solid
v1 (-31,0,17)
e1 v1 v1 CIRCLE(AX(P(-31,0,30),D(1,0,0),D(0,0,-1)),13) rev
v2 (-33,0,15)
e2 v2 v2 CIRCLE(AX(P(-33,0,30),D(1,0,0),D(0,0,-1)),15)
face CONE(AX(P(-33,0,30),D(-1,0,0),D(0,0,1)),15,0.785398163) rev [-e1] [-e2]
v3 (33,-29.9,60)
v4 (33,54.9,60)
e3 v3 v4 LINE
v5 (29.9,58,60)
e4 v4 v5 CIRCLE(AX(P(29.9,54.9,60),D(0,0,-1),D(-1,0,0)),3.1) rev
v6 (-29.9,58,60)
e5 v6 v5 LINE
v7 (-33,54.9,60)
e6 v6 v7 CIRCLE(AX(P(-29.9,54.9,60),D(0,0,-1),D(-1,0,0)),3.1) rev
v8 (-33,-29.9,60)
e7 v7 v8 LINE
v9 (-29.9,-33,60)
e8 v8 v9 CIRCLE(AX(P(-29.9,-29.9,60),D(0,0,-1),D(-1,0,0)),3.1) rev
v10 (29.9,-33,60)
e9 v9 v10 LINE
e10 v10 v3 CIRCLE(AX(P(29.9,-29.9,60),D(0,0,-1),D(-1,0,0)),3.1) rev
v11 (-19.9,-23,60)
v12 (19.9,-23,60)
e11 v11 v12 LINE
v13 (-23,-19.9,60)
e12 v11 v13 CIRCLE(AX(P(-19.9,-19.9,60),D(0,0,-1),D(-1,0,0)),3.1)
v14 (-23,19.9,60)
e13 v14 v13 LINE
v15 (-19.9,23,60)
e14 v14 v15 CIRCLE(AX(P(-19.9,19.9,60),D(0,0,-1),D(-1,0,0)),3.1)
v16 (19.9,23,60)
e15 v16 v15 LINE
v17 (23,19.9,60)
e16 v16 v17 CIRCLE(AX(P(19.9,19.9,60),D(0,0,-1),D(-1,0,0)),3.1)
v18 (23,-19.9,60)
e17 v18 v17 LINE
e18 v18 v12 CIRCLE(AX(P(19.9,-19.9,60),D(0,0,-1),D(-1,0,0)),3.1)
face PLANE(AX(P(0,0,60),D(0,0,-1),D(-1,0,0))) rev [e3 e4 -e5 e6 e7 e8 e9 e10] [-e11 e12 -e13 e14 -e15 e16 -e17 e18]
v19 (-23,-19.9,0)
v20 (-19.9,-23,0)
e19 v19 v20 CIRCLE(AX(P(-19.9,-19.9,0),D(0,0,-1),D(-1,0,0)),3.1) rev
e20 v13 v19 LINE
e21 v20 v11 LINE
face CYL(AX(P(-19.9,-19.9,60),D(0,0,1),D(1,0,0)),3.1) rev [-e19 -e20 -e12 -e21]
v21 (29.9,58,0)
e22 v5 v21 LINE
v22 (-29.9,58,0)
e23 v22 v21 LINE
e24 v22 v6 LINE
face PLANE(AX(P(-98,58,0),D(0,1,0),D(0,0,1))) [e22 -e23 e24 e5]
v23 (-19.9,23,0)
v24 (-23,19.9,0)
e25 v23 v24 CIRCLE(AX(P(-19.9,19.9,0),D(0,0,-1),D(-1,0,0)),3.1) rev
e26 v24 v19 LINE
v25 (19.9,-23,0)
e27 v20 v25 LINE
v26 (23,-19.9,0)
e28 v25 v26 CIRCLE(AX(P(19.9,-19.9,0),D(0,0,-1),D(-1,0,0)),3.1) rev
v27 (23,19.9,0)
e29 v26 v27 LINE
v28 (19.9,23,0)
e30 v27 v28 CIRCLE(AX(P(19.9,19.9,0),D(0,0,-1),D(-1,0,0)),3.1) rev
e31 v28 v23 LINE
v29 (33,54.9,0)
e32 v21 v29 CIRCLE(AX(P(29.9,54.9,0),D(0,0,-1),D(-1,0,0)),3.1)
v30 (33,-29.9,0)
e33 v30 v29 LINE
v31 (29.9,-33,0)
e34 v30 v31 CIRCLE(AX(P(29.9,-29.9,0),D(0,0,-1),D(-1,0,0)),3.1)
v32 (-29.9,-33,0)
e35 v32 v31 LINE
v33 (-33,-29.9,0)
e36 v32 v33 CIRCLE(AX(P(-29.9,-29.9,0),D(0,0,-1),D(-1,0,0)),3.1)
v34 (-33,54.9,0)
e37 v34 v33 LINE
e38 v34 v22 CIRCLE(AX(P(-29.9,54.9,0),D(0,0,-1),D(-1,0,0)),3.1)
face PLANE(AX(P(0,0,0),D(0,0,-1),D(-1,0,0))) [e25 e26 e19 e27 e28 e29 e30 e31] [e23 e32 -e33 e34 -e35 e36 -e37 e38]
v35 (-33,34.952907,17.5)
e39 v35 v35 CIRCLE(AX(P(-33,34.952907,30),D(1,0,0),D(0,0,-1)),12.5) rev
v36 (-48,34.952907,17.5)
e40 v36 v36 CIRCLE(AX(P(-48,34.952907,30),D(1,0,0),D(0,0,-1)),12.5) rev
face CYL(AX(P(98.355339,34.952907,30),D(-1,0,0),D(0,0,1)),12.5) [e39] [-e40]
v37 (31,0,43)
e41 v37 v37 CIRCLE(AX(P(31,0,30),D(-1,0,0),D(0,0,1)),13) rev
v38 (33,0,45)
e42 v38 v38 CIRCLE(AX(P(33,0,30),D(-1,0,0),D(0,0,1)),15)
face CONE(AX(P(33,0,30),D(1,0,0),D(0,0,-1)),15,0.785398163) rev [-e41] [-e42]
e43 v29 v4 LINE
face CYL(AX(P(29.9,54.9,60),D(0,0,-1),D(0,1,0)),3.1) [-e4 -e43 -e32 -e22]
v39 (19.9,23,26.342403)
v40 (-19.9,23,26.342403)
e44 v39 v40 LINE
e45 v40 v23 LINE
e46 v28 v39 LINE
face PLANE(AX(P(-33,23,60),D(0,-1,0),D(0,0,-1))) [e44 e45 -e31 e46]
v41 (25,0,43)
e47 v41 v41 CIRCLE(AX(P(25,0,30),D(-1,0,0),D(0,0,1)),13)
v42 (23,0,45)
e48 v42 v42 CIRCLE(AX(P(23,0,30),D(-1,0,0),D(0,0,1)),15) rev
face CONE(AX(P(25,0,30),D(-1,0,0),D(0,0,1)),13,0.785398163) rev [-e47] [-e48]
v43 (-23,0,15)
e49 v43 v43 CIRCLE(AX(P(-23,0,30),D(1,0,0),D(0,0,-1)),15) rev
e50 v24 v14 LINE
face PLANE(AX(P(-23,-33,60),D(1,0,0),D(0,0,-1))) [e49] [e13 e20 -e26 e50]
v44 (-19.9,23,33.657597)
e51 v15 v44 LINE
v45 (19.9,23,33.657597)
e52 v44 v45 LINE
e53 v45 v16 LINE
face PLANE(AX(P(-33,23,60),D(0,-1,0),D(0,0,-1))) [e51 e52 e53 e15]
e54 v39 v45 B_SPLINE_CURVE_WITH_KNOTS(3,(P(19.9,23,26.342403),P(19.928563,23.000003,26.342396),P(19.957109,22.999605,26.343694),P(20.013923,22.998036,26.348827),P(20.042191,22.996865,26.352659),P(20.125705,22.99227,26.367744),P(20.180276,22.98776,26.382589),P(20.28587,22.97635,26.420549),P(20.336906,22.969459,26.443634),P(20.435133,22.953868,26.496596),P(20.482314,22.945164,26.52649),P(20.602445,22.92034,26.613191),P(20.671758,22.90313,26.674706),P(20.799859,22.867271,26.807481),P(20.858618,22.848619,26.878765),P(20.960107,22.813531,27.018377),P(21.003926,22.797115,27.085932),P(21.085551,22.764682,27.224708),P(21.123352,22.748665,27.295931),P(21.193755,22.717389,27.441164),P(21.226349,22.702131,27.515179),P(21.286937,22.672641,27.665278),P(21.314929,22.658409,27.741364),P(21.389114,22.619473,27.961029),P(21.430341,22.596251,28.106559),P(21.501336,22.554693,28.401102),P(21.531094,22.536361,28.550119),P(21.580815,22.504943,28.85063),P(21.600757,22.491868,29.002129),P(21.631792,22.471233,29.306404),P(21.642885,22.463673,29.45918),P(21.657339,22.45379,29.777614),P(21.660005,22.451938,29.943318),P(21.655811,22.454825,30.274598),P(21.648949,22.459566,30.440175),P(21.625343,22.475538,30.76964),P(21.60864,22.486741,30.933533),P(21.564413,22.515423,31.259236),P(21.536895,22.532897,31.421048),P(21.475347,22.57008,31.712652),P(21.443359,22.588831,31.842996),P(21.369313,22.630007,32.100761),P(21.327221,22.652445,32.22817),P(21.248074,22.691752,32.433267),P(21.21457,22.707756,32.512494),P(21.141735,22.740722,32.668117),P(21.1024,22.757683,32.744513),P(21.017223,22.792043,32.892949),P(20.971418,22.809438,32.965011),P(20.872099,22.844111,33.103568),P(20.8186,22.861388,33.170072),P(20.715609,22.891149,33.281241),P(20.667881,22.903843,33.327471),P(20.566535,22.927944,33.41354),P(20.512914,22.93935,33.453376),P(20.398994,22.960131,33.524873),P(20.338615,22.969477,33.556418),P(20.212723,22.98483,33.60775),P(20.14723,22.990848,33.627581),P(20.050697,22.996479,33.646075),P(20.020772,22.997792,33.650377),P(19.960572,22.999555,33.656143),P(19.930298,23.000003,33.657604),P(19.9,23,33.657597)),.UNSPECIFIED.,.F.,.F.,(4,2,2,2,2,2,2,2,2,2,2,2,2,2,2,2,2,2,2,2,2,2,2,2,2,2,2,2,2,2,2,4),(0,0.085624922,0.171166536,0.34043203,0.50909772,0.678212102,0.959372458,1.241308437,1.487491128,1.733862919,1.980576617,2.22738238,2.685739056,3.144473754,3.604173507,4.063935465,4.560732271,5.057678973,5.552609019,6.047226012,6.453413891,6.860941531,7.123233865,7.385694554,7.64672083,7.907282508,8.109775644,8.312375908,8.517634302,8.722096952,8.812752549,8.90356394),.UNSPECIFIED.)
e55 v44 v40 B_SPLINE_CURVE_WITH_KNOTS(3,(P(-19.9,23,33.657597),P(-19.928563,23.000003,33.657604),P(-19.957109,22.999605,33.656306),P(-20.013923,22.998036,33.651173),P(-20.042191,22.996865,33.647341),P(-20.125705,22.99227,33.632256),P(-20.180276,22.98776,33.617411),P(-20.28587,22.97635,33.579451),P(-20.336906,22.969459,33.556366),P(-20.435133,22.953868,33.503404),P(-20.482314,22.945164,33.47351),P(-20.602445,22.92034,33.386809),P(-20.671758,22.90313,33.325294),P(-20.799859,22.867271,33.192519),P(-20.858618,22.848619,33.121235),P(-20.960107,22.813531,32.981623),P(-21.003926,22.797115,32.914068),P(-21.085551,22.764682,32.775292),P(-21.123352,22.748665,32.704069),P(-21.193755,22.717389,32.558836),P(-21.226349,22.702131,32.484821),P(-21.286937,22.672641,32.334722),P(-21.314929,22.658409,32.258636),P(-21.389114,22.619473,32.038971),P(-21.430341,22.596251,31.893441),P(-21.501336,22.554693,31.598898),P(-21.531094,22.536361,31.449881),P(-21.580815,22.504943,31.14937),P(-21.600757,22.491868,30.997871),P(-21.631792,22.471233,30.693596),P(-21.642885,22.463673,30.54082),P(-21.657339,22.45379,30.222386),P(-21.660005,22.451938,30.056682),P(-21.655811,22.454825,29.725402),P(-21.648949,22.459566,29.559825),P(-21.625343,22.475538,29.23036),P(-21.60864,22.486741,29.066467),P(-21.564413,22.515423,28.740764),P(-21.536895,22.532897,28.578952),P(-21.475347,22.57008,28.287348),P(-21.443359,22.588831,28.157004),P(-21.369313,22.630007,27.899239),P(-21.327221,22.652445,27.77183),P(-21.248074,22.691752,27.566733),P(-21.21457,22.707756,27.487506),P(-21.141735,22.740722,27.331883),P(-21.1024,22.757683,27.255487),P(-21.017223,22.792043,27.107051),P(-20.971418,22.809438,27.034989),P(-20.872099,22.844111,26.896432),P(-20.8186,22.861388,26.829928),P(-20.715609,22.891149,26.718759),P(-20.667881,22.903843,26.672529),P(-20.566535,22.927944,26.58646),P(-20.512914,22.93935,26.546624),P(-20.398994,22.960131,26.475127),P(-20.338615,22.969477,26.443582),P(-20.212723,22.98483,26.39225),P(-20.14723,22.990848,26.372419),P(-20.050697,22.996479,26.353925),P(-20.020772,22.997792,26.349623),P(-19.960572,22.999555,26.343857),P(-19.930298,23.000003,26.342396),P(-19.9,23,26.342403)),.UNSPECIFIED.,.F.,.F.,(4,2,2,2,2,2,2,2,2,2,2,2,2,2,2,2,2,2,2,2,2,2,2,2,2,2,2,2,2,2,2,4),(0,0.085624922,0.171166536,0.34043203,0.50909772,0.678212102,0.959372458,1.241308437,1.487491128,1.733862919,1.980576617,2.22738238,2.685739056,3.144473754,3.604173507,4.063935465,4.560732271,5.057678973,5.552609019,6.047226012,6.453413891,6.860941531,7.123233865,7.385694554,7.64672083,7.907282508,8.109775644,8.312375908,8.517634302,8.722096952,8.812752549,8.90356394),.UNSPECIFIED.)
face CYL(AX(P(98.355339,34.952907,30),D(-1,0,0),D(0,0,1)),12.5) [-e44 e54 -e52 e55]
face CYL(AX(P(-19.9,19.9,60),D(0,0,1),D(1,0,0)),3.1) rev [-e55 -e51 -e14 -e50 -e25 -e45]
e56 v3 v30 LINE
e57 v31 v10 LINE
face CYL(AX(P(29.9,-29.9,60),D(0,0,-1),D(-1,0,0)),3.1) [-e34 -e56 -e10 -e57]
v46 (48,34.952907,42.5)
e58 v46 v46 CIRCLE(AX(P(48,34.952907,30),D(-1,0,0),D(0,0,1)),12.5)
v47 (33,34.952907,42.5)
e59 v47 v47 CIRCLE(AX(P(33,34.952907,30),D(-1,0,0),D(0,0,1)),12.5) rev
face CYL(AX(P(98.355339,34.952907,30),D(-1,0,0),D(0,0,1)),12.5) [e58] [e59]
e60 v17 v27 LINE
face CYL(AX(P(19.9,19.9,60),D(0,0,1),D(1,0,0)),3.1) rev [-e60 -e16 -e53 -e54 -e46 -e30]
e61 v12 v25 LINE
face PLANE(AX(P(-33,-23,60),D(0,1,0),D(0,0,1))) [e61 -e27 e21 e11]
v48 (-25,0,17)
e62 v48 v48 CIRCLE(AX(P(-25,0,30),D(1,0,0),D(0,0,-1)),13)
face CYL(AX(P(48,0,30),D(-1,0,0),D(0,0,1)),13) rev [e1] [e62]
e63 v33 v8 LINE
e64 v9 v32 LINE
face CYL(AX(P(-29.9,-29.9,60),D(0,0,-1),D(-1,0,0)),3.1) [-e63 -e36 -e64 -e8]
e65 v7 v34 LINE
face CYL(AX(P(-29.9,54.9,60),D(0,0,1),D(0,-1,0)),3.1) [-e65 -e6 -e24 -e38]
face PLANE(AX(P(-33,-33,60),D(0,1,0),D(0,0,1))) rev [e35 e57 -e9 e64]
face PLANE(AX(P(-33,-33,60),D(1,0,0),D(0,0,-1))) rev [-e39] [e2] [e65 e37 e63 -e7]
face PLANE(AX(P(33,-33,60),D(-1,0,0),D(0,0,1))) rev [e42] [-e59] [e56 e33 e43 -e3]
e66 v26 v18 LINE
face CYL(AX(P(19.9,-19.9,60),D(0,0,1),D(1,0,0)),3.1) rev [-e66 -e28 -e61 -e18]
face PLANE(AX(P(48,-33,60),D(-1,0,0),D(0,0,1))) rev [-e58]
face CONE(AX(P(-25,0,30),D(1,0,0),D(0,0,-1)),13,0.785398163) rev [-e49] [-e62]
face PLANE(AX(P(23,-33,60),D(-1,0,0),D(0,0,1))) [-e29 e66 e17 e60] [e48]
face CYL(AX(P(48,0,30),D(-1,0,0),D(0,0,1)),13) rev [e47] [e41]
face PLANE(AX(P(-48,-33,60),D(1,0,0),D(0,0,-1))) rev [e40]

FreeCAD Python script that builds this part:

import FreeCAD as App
import Part
import Sketcher
Q = App.Units.Quantity


def edges_at(feature, points):
    """Names of the edges that pass closest to the given points."""
    edges = feature.Shape.Edges
    near = lambda p: min(range(len(edges)), key=lambda i: edges[i].distToShape(Part.Vertex(*p))[0])
    return sorted({f"Edge{near(p) + 1}" for p in points})


def faces_at(feature, points):
    """Names of the faces that lie closest to the given points."""
    faces = feature.Shape.Faces
    near = lambda p: min(range(len(faces)), key=lambda i: faces[i].distToShape(Part.Vertex(*p))[0])
    return sorted({f"Face{near(p) + 1}" for p in points})

doc = App.newDocument("Part")
body = doc.addObject("PartDesign::Body", "Body")

# Sketch on XY plane
sketch1 = doc.addObject("Sketcher::SketchObject", "Sketch")
body.addObject(sketch1)
sketch1.AttachmentSupport = (doc.XY_Plane, [""])
sketch1.MapMode = "FlatFace"
sketch1.addGeometry([
    Part.LineSegment(App.Vector(-33, 33, 0), App.Vector(-33, -33, 0)),
    Part.LineSegment(App.Vector(-33, -33, 0), App.Vector(33, -33, 0)),
    Part.LineSegment(App.Vector(33, -33, 0), App.Vector(33, 33, 0)),
    Part.LineSegment(App.Vector(33, 33, 0), App.Vector(-33, 33, 0)),
], False)
sketch1.addConstraint([
    Sketcher.Constraint("Coincident", 0, 2, 1, 1),
    Sketcher.Constraint("Coincident", 1, 2, 2, 1),
    Sketcher.Constraint("Coincident", 2, 2, 3, 1),
    Sketcher.Constraint("Coincident", 3, 2, 0, 1),
    Sketcher.Constraint("Vertical", 0),
    Sketcher.Constraint("Horizontal", 1),
    Sketcher.Constraint("Vertical", 2),
    Sketcher.Constraint("Horizontal", 3),
    Sketcher.Constraint("Symmetric", 0, 2, 2, 2, -1, 1),
    Sketcher.Constraint("Equal", 3, 0),
    Sketcher.Constraint("DistanceX", 1, 1, 1, 2, Q("66 mm")),
])
pad1 = doc.addObject("PartDesign::Pad", "Pad")
body.addObject(pad1)
pad1.Profile = sketch1
pad1.Length = 60
doc.recompute()

thickness = doc.addObject("PartDesign::Thickness", "Thickness")
body.addObject(thickness)
thickness.Base = (pad1, faces_at(pad1, [(0, 0, 60), (0, 0, 0)]))
thickness.Value = 10
thickness.Reversed = True
thickness.Join = "Intersection"
doc.recompute()

fillet = doc.addObject("PartDesign::Fillet", "Fillet")
body.addObject(fillet)
fillet.Base = (thickness, edges_at(thickness, [
    (23, -23, 30),
    (23, 23, 30),
    (-23, 23, 30),
    (-23, -23, 30),
]))
fillet.Radius = 3.1

# Sketch on YZ plane
sketch2 = doc.addObject("Sketcher::SketchObject", "Sketch001")
body.addObject(sketch2)
sketch2.AttachmentSupport = (doc.YZ_Plane, [""])
sketch2.MapMode = "FlatFace"
sketch2.AttachmentOffset = App.Placement(App.Vector(0, 0, 33), App.Rotation())
sketch2.addGeometry([
    Part.LineSegment(App.Vector(58, 60, 0), App.Vector(33, 60, 0)),
    Part.LineSegment(App.Vector(33, 60, 0), App.Vector(33, 0, 0)),
    Part.LineSegment(App.Vector(33, 0, 0), App.Vector(58, 0, 0)),
    Part.LineSegment(App.Vector(58, 0, 0), App.Vector(58, 60, 0)),
], False)
sketch2.addConstraint([
    Sketcher.Constraint("Coincident", 0, 2, 1, 1),
    Sketcher.Constraint("Coincident", 1, 2, 2, 1),
    Sketcher.Constraint("Coincident", 2, 2, 3, 1),
    Sketcher.Constraint("Coincident", 3, 2, 0, 1),
    Sketcher.Constraint("Horizontal", 0),
    Sketcher.Constraint("Vertical", 1),
    Sketcher.Constraint("Horizontal", 2),
    Sketcher.Constraint("Vertical", 3),
    Sketcher.Constraint("PointOnObject", 1, 2, -1),
    Sketcher.Constraint("DistanceX", 0, 2, 0, 1, Q("25 mm")),
    Sketcher.Constraint("DistanceY", 1, 2, 1, 1, Q("60 mm")),
    Sketcher.Constraint("DistanceX", -1, 1, 0, 2, Q("33 mm")),
])
pad2 = doc.addObject("PartDesign::Pad", "Pad001")
body.addObject(pad2)
pad2.Profile = sketch2
pad2.Length = 66
pad2.Reversed = True
doc.recompute()

fillet2 = doc.addObject("PartDesign::Fillet", "Fillet001")
body.addObject(fillet2)
fillet2.Base = (pad2, edges_at(pad2, [
    (33, 58, 30),
    (-33, 58, 30),
    (33, -33, 30),
    (-33, -33, 30),
]))
fillet2.Radius = 3.1

# Sketch on YZ plane
sketch3 = doc.addObject("Sketcher::SketchObject", "Sketch002")
body.addObject(sketch3)
sketch3.AttachmentSupport = (doc.YZ_Plane, [""])
sketch3.MapMode = "FlatFace"
sketch3.addGeometry(Part.Circle(App.Vector(34.952907, 30, 0), App.Vector(0, 0, 1), 12.5), False)
sketch3.addConstraint([
    Sketcher.Constraint("Diameter", 0, Q("25 mm")),
    Sketcher.Constraint("DistanceY", -1, 1, 0, 3, Q("30 mm")),
    Sketcher.Constraint("DistanceX", -1, 1, 0, 3, Q("34.952907 mm")),
])
pad3 = doc.addObject("PartDesign::Pad", "Pad002")
body.addObject(pad3)
pad3.Profile = sketch3
pad3.Type = "TwoLengths"
pad3.Length = 48
pad3.Length2 = 48

# Sketch on YZ plane
sketch4 = doc.addObject("Sketcher::SketchObject", "Sketch003")
body.addObject(sketch4)
sketch4.AttachmentSupport = (doc.YZ_Plane, [""])
sketch4.MapMode = "FlatFace"
sketch4.AttachmentOffset = App.Placement(App.Vector(0, 0, 23), App.Rotation())
sketch4.addGeometry(Part.Circle(App.Vector(0, 30, 0), App.Vector(0, 0, 1), 13), False)
sketch4.addConstraint([
    Sketcher.Constraint("PointOnObject", 0, 3, -2),
    Sketcher.Constraint("Diameter", 0, Q("26 mm")),
    Sketcher.Constraint("DistanceY", -1, 1, 0, 3, Q("30 mm")),
])
pocket1 = doc.addObject("PartDesign::Pocket", "Pocket")
body.addObject(pocket1)
pocket1.Profile = sketch4
pocket1.Type = "ThroughAll"
pocket1.Midplane = True
doc.recompute()

chamfer = doc.addObject("PartDesign::Chamfer", "Chamfer")
body.addObject(chamfer)
chamfer.Base = (pocket1, edges_at(pocket1, [
    (33, 0, 43),
    (-33, 0, 43),
    (-23, 0, 43),
    (23, 0, 43),
]))
chamfer.Size = 2

doc.recompute()
